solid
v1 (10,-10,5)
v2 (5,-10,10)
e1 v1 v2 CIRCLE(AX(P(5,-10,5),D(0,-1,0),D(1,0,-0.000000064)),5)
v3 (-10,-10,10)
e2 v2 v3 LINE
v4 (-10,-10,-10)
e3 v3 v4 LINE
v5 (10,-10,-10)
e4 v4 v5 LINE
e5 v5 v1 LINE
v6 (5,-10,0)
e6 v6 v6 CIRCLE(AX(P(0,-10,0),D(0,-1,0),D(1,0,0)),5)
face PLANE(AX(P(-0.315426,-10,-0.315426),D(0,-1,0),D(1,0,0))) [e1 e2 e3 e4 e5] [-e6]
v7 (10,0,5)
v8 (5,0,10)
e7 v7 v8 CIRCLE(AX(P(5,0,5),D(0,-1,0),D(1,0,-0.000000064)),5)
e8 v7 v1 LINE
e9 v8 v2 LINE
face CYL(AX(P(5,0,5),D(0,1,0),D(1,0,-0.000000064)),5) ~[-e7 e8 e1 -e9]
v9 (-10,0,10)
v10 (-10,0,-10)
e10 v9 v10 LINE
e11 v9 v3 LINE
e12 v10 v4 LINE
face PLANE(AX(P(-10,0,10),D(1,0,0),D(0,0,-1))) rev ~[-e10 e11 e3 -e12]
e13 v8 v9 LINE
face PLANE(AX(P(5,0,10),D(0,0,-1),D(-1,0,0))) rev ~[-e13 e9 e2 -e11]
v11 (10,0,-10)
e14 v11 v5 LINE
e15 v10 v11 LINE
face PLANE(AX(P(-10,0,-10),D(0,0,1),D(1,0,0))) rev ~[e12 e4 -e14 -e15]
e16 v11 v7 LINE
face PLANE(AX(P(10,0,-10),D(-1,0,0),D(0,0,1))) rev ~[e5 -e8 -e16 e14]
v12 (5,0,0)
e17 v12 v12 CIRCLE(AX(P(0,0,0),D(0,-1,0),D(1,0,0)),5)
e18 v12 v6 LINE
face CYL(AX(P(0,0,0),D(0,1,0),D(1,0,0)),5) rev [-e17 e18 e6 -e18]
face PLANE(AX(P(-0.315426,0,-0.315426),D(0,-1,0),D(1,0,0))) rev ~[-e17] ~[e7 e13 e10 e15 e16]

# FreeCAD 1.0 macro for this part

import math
import FreeCAD as App
import Part
import Sketcher
Q = App.Units.Quantity

doc = App.newDocument("Part")
body = doc.addObject("PartDesign::Body", "Body")

# Sketch on XZ plane
sketch1 = doc.addObject("Sketcher::SketchObject", "Sketch")
body.addObject(sketch1)
sketch1.AttachmentSupport = (doc.XZ_Plane, [""])
sketch1.MapMode = "FlatFace"
sketch1.addGeometry(Part.ArcOfCircle(Part.Circle(App.Vector(5, 5, 0), App.Vector(0, 0, 1), 5), math.radians(0), math.radians(90)), False)
sketch1.addGeometry(Part.LineSegment(App.Vector(5, 10, 0), App.Vector(-10, 10, 0)), False)
sketch1.addGeometry(Part.LineSegment(App.Vector(-10, 10, 0), App.Vector(-10, -10, 0)), False)
sketch1.addGeometry(Part.LineSegment(App.Vector(-10, -10, 0), App.Vector(10, -10, 0)), False)
sketch1.addGeometry(Part.LineSegment(App.Vector(10, -10, 0), App.Vector(10, 5, 0)), False)
sketch1.addGeometry(Part.Circle(App.Vector(0, 0, 0), App.Vector(0, 0, 1), 5), False)
sketch1.addConstraint(Sketcher.Constraint("Tangent", 0, 2, 1, 1))
sketch1.addConstraint(Sketcher.Constraint("Coincident", 1, 2, 2, 1))
sketch1.addConstraint(Sketcher.Constraint("Coincident", 2, 2, 3, 1))
sketch1.addConstraint(Sketcher.Constraint("Coincident", 3, 2, 4, 1))
sketch1.addConstraint(Sketcher.Constraint("Tangent", 4, 2, 0, 1))
sketch1.addConstraint(Sketcher.Constraint("Horizontal", 1))
sketch1.addConstraint(Sketcher.Constraint("Vertical", 2))
sketch1.addConstraint(Sketcher.Constraint("Horizontal", 3))
sketch1.addConstraint(Sketcher.Constraint("Vertical", 4))
sketch1.addConstraint(Sketcher.Constraint("Coincident", 5, 3, -1, 1))
sketch1.addConstraint(Sketcher.Constraint("Equal", 0, 5))
sketch1.addConstraint(Sketcher.Constraint("Symmetric", 1, 2, 3, 2, -1, 1))
sketch1.addConstraint(Sketcher.Constraint("Equal", 3, 2))
sketch1.addConstraint(Sketcher.Constraint("Diameter", 5, Q("10 mm")))
sketch1.addConstraint(Sketcher.Constraint("DistanceX", 1, 2, 1, 1, Q("15 mm")))
pad1 = doc.addObject("PartDesign::Pad", "Pad")
body.addObject(pad1)
pad1.Profile = sketch1
pad1.Length = 10

doc.recompute()
